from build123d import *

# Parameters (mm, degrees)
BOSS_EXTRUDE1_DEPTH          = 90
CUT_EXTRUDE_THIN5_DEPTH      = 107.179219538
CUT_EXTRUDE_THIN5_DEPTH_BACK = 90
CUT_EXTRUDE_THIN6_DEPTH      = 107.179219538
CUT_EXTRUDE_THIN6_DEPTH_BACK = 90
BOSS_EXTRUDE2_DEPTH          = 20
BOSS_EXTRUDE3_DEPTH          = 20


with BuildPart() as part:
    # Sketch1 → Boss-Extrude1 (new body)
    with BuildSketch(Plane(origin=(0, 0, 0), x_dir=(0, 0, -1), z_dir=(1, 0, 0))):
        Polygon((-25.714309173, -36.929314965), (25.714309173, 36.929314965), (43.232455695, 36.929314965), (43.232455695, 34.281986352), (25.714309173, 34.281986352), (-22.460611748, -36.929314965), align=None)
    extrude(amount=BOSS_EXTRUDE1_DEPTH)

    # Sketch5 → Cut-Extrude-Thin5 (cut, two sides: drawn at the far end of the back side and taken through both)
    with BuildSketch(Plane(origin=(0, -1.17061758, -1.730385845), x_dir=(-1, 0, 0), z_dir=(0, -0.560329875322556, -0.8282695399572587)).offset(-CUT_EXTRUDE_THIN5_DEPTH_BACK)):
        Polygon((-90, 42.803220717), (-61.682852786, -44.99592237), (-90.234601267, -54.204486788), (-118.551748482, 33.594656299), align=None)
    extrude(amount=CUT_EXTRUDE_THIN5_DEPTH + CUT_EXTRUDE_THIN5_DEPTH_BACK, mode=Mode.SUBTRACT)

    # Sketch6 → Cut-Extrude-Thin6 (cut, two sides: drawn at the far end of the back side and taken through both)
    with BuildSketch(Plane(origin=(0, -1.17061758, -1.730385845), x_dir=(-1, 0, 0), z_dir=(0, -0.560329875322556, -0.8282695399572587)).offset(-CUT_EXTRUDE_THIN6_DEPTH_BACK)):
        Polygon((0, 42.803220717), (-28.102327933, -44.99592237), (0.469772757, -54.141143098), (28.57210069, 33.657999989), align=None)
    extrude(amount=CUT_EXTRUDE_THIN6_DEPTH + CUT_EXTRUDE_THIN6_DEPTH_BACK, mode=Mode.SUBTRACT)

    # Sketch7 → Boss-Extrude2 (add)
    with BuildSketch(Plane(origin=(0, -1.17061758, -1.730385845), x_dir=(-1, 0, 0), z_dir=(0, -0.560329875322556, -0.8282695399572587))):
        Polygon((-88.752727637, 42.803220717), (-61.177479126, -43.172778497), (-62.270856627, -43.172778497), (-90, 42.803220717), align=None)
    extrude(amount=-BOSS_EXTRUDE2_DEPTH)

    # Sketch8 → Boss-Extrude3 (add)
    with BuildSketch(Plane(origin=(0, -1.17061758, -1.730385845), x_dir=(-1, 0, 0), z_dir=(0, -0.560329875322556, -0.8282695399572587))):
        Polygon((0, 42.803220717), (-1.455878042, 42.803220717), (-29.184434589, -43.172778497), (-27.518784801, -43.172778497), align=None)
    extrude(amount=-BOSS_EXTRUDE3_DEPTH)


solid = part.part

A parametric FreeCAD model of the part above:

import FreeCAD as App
import Part
import Sketcher
Q = App.Units.Quantity


def add_polygon(sketch, points):
    """Adds a closed chain of lines whose ends are joined by coincident constraints."""
    first, n = sketch.GeometryCount, len(points)
    for a, b in zip(points, points[1:] + points[:1]):
        sketch.addGeometry(Part.LineSegment(App.Vector(*a, 0), App.Vector(*b, 0)), False)
    for i in range(n):
        sketch.addConstraint(Sketcher.Constraint("Coincident", first + i, 2, first + (i + 1) % n, 1))

doc = App.newDocument("Part")
params = doc.addObject("Spreadsheet::Sheet", "Params")
for row, (alias, value) in enumerate([
    ("sketch1_length", "90 mm"),
    ("pad1_length", "90 mm"),
    ("sketch2_length", "30 mm"),
    ("sketch3_length", "30 mm"),
    ("pad2_length", "20 mm"),
    ("pad3_length", "20 mm"),
], start=1):
    params.set(f"A{row}", alias)
    params.set(f"B{row}", "=" + value)
    params.setAlias(f"B{row}", alias)

body = doc.addObject("PartDesign::Body", "Body")

# Sketch on YZ plane
sketch1 = doc.addObject("Sketcher::SketchObject", "Sketch")
body.addObject(sketch1)
sketch1.AttachmentSupport = (doc.YZ_Plane, [""])
sketch1.MapMode = "FlatFace"
add_polygon(sketch1, [(36.929315, -25.714309), (-36.929315, 25.714309), (-36.929315, 22.460612), (34.281986, -25.714309), (34.281986, -43.232456), (36.929315, -43.232456)])  # lines 0-5
sketch1.addConstraint([
    Sketcher.Constraint("Vertical", 1),
    Sketcher.Constraint("Vertical", 3),
    Sketcher.Constraint("Horizontal", 4),
    Sketcher.Constraint("Vertical", 5),
    Sketcher.Constraint("Symmetric", 0, 2, 5, 2, -1, 1),
    Sketcher.Constraint("Horizontal", 2, 2, 5, 2),
    Sketcher.Constraint("Distance", 0, Q("90 mm")),
    Sketcher.Constraint("Distance", 2, Q("85.975999 mm")),
    Sketcher.Constraint("DistanceX", 4, 1, 4, 2, Q("2.647329 mm")),
    Sketcher.Constraint("DistanceX", 1, 2, 2, 2, Q("71.211301 mm")),
    Sketcher.Constraint("DistanceY", 3, 2, 3, 1, Q("17.518147 mm")),
])
sketch1.setExpression("Constraints[12]", "Params.sketch1_length")
pad1 = doc.addObject("PartDesign::Pad", "Pad")
body.addObject(pad1)
pad1.Profile = sketch1
pad1.setExpression("Length", "Params.pad1_length")

# Sketch on an angled plane
sketch2 = doc.addObject("Sketcher::SketchObject", "Sketch001")
body.addObject(sketch2)
sketch2.Placement = App.Placement(App.Vector(0, -1.170618, -1.730386), App.Rotation(App.Vector(-1, 0, 0), App.Vector(0, 0.82826954, -0.560329875), App.Vector(0, -0.560329875, -0.82826954), "ZXY"))
add_polygon(sketch2, [(-61.682853, -44.995922), (-90, 42.803221), (-118.551748, 33.594656), (-90.234601, -54.204487)])  # lines 0-3
sketch2.addConstraint([
    Sketcher.Constraint("Perpendicular", 0, 1),
    Sketcher.Constraint("Perpendicular", 1, 2),
    Sketcher.Constraint("Perpendicular", 2, 3),
    Sketcher.Constraint("Distance", 1, Q("30 mm")),
    Sketcher.Constraint("DistanceX", 0, 2, -1, 1, Q("90 mm")),
    Sketcher.Constraint("DistanceX", 2, 2, -1, 1, Q("90.234601 mm")),
    Sketcher.Constraint("DistanceY", -1, 1, 0, 2, Q("42.803221 mm")),
    Sketcher.Constraint("DistanceX", 1, 2, -1, 1, Q("118.551748 mm")),
])
sketch2.setExpression("Constraints[7]", "Params.sketch2_length")
pocket1 = doc.addObject("PartDesign::Pocket", "Pocket")
body.addObject(pocket1)
pocket1.Profile = sketch2
pocket1.Type = "ThroughAll"
pocket1.Midplane = True

# Sketch on an angled plane
sketch3 = doc.addObject("Sketcher::SketchObject", "Sketch002")
body.addObject(sketch3)
sketch3.Placement = App.Placement(App.Vector(0, -1.170618, -1.730386), App.Rotation(App.Vector(-1, 0, 0), App.Vector(0, 0.82826954, -0.560329875), App.Vector(0, -0.560329875, -0.82826954), "ZXY"))
add_polygon(sketch3, [(0, 42.803221), (-28.102328, -44.995922), (0.469773, -54.141143), (28.572101, 33.658)])  # lines 0-3
sketch3.addConstraint([
    Sketcher.Constraint("PointOnObject", 3, 2, -2),
    Sketcher.Constraint("Perpendicular", 0, 1),
    Sketcher.Constraint("Perpendicular", 1, 2),
    Sketcher.Constraint("Perpendicular", 2, 3),
    Sketcher.Constraint("Distance", 1, Q("30 mm")),
    Sketcher.Constraint("DistanceY", -1, 1, 2, 2, Q("33.658 mm")),
    Sketcher.Constraint("DistanceX", -1, 1, 2, 2, Q("28.572101 mm")),
    Sketcher.Constraint("Distance", 0, Q("92.186932 mm")),
])
sketch3.setExpression("Constraints[8]", "Params.sketch3_length")
pocket2 = doc.addObject("PartDesign::Pocket", "Pocket001")
body.addObject(pocket2)
pocket2.Profile = sketch3
pocket2.Type = "ThroughAll"
pocket2.Midplane = True

# Sketch on an angled plane
sketch4 = doc.addObject("Sketcher::SketchObject", "Sketch003")
body.addObject(sketch4)
sketch4.Placement = App.Placement(App.Vector(0, -1.170618, -1.730386), App.Rotation(App.Vector(-1, 0, 0), App.Vector(0, 0.82826954, -0.560329875), App.Vector(0, -0.560329875, -0.82826954), "ZXY"))
add_polygon(sketch4, [(-61.177479, -43.172778), (-88.752728, 42.803221), (-90, 42.803221), (-62.270857, -43.172778)])  # lines 0-3
sketch4.addConstraint([
    Sketcher.Constraint("Horizontal", 1),
    Sketcher.Constraint("Horizontal", 3),
    Sketcher.Constraint("DistanceX", 1, 2, -1, 1, Q("90 mm")),
    Sketcher.Constraint("DistanceY", 2, 2, 0, 2, Q("85.975999 mm")),
    Sketcher.Constraint("DistanceX", 1, 2, 1, 1, Q("1.247272 mm")),
    Sketcher.Constraint("DistanceX", 3, 1, 3, 2, Q("1.093378 mm")),
    Sketcher.Constraint("DistanceY", -1, 1, 0, 2, Q("42.803221 mm")),
    Sketcher.Constraint("DistanceX", 3, 2, -1, 1, Q("61.177479 mm")),
])
pad2 = doc.addObject("PartDesign::Pad", "Pad001")
body.addObject(pad2)
pad2.Profile = sketch4
pad2.setExpression("Length", "Params.pad2_length")
pad2.Reversed = True

# Sketch on an angled plane
sketch5 = doc.addObject("Sketcher::SketchObject", "Sketch004")
body.addObject(sketch5)
sketch5.Placement = App.Placement(App.Vector(0, -1.170618, -1.730386), App.Rotation(App.Vector(-1, 0, 0), App.Vector(0, 0.82826954, -0.560329875), App.Vector(0, -0.560329875, -0.82826954), "ZXY"))
add_polygon(sketch5, [(0, 42.803221), (-1.455878, 42.803221), (-29.184435, -43.172778), (-27.518785, -43.172778)])  # lines 0-3
sketch5.addConstraint([
    Sketcher.Constraint("Horizontal", 0),
    Sketcher.Constraint("Horizontal", 2),
    Sketcher.Constraint("PointOnObject", 3, 2, -2),
    Sketcher.Constraint("DistanceY", 1, 2, 0, 2, Q("85.975999 mm")),
    Sketcher.Constraint("DistanceX", 0, 2, 0, 1, Q("1.455878 mm")),
    Sketcher.Constraint("DistanceX", 2, 1, 2, 2, Q("1.66565 mm")),
    Sketcher.Constraint("DistanceY", -1, 1, 0, 2, Q("42.803221 mm")),
    Sketcher.Constraint("Distance", 1, Q("90.336843 mm")),
])
pad3 = doc.addObject("PartDesign::Pad", "Pad002")
body.addObject(pad3)
pad3.Profile = sketch5
pad3.setExpression("Length", "Params.pad3_length")
pad3.Reversed = True

doc.recompute()
